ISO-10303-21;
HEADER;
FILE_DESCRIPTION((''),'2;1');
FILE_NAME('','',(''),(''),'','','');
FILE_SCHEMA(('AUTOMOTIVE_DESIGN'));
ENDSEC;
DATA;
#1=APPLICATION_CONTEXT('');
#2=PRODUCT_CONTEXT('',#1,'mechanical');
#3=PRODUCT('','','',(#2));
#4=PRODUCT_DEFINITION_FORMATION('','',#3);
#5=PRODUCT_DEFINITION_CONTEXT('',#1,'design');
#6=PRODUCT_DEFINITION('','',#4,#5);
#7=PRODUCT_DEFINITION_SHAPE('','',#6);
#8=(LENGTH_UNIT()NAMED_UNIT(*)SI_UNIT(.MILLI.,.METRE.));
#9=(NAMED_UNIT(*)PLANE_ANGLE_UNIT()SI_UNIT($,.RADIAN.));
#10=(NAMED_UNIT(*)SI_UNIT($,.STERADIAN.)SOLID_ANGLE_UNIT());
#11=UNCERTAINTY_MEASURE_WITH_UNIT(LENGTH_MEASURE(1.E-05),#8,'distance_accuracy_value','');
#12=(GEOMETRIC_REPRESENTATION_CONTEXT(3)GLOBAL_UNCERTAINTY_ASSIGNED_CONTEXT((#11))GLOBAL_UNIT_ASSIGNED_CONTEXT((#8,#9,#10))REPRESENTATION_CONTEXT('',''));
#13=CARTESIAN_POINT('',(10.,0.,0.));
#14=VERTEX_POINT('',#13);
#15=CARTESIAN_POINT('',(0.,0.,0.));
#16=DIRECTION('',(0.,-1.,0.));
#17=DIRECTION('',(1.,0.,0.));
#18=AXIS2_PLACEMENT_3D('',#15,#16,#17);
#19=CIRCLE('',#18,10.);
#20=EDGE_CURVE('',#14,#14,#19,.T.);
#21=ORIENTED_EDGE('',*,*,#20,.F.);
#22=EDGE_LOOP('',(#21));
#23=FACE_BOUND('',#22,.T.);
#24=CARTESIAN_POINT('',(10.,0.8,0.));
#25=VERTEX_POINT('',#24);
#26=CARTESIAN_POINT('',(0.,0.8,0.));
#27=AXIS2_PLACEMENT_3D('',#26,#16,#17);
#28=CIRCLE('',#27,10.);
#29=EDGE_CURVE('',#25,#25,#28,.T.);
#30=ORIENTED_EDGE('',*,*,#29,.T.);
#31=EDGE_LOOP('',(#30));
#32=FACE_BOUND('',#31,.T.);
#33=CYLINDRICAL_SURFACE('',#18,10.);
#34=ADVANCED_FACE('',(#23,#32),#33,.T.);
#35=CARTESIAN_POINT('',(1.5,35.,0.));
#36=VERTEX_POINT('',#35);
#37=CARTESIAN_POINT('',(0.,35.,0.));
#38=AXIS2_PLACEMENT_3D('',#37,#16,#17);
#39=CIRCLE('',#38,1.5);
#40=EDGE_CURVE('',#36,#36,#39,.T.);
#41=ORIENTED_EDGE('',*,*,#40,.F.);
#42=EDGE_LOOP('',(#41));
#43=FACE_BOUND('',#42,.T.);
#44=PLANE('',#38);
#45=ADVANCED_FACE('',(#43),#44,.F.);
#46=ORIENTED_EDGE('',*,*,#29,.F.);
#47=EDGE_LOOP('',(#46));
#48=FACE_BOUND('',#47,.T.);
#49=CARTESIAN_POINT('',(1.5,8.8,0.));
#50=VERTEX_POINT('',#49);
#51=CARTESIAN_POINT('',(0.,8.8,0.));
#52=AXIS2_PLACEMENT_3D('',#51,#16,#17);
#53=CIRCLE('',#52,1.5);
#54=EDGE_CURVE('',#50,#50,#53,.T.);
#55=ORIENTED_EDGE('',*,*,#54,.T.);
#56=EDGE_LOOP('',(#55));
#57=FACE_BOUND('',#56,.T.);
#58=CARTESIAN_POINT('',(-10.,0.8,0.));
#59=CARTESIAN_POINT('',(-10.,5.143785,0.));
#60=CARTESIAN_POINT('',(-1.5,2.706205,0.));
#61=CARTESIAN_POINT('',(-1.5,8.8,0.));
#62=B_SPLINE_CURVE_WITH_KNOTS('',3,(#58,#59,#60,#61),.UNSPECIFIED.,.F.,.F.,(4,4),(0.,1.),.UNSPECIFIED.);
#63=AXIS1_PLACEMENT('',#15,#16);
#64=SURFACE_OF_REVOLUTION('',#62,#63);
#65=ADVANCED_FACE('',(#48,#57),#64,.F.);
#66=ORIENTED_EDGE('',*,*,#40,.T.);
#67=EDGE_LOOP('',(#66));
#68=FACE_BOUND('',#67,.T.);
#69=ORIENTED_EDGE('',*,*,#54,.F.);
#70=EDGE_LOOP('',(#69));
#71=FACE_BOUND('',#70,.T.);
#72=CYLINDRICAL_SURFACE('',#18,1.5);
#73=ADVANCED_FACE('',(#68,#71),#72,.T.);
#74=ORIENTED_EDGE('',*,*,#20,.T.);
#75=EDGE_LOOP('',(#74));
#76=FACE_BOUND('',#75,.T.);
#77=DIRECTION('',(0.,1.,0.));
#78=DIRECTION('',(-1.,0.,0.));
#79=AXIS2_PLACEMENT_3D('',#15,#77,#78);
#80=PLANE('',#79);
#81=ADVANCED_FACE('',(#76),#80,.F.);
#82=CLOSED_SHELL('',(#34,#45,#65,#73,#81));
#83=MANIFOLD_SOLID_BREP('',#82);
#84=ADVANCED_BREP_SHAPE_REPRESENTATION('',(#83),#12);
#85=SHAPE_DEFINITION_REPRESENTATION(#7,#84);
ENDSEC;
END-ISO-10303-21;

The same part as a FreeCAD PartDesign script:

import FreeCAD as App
import Part
import Sketcher
Q = App.Units.Quantity

doc = App.newDocument("Part")
params = doc.addObject("Spreadsheet::Sheet", "Params")
for row, (alias, value) in enumerate([
    ("sketch1_height", "35 mm"),
    ("revolution_angle", "360 deg"),
], start=1):
    params.set(f"A{row}", alias)
    params.set(f"B{row}", "=" + value)
    params.setAlias(f"B{row}", alias)

body = doc.addObject("PartDesign::Body", "Body")

sketch1 = doc.addObject("Sketcher::SketchObject", "Sketch")
body.addObject(sketch1)
sketch1.AttachmentSupport = (doc.XY_Plane, [""])
sketch1.MapMode = "FlatFace"
sketch1.addGeometry(Part.LineSegment(App.Vector(-10, 0.8, 0), App.Vector(-10, 0, 0)), False)
sketch1.addGeometry(Part.LineSegment(App.Vector(-10, 0, 0), App.Vector(0, 0, 0)), False)
sketch1.addGeometry(Part.LineSegment(App.Vector(0, 0, 0), App.Vector(0, 35, 0)), False)
sketch1.addGeometry(Part.LineSegment(App.Vector(0, 35, 0), App.Vector(-1.5, 35, 0)), False)
sketch1.addGeometry(Part.LineSegment(App.Vector(-1.5, 35, 0), App.Vector(-1.5, 8.8, 0)), False)
sketch1.addGeometry(Part.BSplineCurve([App.Vector(-10, 0.8, 0), App.Vector(-10, 5.143785, 0), App.Vector(-1.5, 2.706205, 0), App.Vector(-1.5, 8.8, 0)], [4, 4], [0, 1], False, 3, [1, 1, 1, 1], False), False)
sketch1.addConstraint(Sketcher.Constraint("Block", 5))
sketch1.addConstraint(Sketcher.Constraint("Coincident", 0, 2, 1, 1))
sketch1.addConstraint(Sketcher.Constraint("Coincident", 1, 2, 2, 1))
sketch1.addConstraint(Sketcher.Constraint("Coincident", 2, 2, 3, 1))
sketch1.addConstraint(Sketcher.Constraint("Coincident", 3, 2, 4, 1))
sketch1.addConstraint(Sketcher.Constraint("Coincident", 4, 2, 5, 2))
sketch1.addConstraint(Sketcher.Constraint("Coincident", 5, 1, 0, 1))
sketch1.addConstraint(Sketcher.Constraint("Vertical", 0))
sketch1.addConstraint(Sketcher.Constraint("Horizontal", 1))
sketch1.addConstraint(Sketcher.Constraint("Vertical", 2))
sketch1.addConstraint(Sketcher.Constraint("Horizontal", 3))
sketch1.addConstraint(Sketcher.Constraint("Vertical", 4))
sketch1.addConstraint(Sketcher.Constraint("Coincident", 1, 2, -1, 1))
sketch1.addConstraint(Sketcher.Constraint("DistanceY", 2, 1, 2, 2, Q("35 mm")))
sketch1.setExpression("Constraints[13]", "Params.sketch1_height")
revolution = doc.addObject("PartDesign::Revolution", "Revolution")
body.addObject(revolution)
revolution.Profile = sketch1
revolution.ReferenceAxis = (sketch1, ["V_Axis"])
revolution.setExpression("Angle", "Params.revolution_angle")

doc.recompute()
